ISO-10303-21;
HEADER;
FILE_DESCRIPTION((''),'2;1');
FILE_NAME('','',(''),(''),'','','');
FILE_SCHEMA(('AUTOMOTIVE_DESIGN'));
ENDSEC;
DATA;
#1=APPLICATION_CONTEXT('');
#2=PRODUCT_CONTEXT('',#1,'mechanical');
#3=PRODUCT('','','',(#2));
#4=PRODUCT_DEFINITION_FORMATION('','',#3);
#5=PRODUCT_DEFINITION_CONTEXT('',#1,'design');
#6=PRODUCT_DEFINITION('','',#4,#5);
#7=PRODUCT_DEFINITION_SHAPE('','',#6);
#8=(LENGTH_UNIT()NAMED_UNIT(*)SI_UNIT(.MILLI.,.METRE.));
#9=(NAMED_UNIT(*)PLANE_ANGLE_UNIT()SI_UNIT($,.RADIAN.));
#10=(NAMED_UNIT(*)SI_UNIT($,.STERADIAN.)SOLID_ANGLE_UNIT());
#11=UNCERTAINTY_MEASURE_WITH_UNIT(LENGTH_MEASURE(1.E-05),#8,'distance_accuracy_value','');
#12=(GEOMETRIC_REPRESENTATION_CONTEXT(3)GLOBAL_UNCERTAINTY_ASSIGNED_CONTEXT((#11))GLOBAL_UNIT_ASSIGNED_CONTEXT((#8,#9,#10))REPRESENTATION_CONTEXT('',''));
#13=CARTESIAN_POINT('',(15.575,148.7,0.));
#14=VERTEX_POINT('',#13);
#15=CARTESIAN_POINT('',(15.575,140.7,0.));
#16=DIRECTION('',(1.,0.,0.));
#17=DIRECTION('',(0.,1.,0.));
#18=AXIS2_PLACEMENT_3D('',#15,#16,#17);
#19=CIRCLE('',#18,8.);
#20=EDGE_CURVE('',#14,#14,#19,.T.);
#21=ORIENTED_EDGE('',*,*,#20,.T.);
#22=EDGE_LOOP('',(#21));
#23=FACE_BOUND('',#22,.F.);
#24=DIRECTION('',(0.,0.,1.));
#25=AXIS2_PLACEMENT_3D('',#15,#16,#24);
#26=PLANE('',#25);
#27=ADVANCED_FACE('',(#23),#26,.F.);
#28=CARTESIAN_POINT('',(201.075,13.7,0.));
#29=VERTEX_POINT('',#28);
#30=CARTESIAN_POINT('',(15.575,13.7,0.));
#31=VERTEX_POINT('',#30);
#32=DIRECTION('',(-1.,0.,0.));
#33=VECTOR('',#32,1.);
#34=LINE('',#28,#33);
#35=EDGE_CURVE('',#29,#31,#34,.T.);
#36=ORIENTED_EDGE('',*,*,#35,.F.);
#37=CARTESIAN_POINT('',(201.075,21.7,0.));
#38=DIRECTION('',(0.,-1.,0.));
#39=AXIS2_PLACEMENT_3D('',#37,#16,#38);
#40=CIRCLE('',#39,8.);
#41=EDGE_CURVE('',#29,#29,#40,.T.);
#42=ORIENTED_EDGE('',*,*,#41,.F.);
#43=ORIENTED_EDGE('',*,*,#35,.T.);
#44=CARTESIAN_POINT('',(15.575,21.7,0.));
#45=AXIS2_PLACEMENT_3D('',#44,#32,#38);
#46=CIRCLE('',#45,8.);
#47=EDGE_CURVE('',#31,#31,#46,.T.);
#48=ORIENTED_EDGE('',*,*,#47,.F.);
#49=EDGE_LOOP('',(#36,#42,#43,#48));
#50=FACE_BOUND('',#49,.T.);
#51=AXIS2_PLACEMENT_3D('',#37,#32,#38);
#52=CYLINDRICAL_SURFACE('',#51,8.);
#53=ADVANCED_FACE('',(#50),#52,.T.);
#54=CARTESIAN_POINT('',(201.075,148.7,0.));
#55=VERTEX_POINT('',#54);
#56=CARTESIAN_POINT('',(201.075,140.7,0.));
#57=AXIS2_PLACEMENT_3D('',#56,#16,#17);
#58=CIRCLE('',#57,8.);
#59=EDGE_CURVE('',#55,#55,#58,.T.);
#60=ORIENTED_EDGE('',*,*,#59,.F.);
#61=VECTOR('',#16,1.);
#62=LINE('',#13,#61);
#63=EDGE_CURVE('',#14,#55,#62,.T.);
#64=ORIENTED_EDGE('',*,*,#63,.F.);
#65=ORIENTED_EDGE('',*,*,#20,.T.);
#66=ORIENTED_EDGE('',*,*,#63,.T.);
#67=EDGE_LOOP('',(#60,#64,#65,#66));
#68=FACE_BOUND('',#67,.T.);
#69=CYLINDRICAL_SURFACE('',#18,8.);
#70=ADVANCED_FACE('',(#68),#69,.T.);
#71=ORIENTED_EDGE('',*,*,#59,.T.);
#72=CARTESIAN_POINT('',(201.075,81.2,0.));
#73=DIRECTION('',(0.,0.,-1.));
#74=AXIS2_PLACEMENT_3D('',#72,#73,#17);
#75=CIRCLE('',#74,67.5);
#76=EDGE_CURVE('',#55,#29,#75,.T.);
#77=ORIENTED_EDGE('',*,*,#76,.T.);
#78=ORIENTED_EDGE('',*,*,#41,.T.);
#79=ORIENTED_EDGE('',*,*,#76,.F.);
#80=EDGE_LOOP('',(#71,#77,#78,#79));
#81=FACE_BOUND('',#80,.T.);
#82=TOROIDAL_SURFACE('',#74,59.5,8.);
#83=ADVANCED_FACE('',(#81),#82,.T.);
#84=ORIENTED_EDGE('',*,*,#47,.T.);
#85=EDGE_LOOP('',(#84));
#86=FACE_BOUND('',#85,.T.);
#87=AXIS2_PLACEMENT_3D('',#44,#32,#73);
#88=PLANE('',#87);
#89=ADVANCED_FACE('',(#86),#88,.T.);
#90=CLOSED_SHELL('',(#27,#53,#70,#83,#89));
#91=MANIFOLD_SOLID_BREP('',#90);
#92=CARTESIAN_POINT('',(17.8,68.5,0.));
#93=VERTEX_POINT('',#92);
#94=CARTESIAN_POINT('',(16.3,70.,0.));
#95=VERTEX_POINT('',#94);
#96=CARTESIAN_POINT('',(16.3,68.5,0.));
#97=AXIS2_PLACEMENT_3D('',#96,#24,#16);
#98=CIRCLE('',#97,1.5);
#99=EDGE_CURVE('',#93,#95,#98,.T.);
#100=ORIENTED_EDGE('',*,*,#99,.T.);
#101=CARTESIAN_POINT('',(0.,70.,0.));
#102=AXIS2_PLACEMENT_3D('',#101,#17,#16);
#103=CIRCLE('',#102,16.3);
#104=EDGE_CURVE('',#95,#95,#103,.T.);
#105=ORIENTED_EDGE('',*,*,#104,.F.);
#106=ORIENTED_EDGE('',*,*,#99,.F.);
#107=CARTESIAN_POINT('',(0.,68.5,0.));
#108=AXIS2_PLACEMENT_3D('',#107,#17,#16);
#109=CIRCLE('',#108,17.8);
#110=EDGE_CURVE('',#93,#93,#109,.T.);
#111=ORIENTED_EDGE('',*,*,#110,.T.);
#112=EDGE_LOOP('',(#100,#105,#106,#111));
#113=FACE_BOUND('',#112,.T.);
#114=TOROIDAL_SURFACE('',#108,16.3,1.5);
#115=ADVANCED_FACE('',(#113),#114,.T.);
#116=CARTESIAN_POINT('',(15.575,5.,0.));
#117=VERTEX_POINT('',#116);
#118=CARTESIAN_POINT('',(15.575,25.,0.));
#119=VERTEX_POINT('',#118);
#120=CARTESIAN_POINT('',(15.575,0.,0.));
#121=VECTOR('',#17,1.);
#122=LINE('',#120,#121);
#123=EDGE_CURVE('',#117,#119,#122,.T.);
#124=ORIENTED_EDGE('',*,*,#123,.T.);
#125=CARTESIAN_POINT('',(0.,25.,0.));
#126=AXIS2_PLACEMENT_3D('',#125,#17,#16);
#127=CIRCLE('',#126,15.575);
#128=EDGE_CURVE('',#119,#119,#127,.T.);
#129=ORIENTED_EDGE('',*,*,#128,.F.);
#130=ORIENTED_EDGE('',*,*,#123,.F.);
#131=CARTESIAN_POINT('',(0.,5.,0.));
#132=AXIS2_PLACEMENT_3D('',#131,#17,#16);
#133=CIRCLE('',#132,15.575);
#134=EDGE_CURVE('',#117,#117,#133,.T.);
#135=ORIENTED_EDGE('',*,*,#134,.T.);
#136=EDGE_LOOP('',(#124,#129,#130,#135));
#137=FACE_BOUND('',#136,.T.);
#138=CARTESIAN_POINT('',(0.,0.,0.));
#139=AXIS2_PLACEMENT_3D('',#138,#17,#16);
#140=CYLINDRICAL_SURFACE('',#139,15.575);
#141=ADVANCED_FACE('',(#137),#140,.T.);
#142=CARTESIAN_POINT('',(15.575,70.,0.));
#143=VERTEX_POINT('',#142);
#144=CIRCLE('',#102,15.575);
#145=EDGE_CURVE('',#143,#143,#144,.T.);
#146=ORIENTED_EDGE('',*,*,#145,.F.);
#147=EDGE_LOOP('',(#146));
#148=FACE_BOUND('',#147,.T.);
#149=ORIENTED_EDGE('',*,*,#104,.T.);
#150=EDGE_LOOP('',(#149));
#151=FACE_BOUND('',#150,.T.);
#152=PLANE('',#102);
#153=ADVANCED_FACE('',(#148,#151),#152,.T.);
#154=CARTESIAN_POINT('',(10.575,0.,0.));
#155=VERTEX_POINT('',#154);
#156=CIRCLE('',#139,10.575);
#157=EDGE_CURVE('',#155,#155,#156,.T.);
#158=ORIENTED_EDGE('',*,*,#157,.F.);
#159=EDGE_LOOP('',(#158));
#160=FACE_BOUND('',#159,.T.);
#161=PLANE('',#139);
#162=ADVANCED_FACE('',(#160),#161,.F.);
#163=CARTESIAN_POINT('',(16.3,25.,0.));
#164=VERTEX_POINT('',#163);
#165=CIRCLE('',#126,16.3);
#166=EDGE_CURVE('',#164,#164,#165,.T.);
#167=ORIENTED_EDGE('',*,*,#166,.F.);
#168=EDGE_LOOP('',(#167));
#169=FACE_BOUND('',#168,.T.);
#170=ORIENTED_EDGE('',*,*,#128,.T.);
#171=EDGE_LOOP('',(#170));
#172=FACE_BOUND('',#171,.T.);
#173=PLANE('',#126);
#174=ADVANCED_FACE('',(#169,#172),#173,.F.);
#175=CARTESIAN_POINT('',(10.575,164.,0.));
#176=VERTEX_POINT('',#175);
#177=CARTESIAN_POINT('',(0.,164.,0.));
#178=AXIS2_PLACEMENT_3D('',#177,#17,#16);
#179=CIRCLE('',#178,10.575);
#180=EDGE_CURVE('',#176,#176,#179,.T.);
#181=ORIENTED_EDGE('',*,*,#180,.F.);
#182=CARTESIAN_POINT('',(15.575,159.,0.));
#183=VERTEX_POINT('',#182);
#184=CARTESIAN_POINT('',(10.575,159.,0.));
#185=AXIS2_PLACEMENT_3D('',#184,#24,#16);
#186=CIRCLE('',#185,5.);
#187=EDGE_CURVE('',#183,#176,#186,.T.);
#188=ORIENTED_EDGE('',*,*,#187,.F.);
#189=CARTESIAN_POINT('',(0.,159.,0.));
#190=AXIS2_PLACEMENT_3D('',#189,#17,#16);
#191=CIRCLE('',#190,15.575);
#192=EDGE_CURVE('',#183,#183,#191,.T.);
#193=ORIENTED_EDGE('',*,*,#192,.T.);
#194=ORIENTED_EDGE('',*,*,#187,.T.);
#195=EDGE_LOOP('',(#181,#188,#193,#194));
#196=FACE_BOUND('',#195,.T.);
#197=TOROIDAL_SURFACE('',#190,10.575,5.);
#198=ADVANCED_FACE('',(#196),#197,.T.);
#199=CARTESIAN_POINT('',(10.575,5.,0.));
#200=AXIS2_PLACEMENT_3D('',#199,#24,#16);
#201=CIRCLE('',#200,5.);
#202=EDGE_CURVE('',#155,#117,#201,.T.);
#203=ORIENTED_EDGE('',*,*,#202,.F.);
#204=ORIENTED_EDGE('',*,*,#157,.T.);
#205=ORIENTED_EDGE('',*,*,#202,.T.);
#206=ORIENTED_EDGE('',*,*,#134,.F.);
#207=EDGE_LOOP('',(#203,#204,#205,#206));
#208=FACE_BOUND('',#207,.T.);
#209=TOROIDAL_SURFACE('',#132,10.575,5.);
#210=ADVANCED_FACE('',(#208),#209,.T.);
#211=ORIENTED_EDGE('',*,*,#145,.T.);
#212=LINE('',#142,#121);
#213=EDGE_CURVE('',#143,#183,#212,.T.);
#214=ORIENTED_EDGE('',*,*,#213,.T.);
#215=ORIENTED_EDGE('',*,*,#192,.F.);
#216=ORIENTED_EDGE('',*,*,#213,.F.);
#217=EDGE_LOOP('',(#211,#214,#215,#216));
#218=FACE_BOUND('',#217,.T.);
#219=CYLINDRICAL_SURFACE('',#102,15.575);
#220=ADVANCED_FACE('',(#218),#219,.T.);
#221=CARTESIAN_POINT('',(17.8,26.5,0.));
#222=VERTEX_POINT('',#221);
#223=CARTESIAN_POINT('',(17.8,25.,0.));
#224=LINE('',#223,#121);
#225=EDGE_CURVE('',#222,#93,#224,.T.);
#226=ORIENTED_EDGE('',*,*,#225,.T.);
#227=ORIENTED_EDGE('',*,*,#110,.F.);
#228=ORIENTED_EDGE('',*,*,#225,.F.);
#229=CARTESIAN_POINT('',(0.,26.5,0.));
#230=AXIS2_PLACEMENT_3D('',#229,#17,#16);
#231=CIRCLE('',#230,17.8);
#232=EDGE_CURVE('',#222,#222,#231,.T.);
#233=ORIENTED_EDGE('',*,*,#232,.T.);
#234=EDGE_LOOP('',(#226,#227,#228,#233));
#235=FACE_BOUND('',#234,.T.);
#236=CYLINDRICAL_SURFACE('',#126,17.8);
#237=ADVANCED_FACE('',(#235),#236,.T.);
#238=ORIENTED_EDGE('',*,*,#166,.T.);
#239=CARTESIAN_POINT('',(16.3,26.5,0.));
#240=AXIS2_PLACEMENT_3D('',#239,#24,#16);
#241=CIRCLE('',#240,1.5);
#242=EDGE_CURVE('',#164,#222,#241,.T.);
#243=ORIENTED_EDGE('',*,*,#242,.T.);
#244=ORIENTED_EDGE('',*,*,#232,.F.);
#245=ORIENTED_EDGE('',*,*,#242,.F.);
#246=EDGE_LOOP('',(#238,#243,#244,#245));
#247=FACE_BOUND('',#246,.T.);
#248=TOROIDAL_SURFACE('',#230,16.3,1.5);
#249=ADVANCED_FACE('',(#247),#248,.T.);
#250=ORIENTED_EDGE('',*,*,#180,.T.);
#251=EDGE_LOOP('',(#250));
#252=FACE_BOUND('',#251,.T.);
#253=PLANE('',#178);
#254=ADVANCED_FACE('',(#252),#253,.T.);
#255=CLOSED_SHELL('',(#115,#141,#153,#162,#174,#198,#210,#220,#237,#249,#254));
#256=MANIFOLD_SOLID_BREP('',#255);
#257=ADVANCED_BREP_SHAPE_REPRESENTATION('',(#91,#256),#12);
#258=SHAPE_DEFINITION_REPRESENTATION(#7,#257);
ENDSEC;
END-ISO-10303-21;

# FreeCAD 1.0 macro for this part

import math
import FreeCAD as App
import Part
import Sketcher
from FreeCAD import Vector


def edges_at(feature, points):
    """Names of the edges that pass closest to the given points."""
    edges = feature.Shape.Edges
    near = lambda p: min(range(len(edges)), key=lambda i: edges[i].distToShape(Part.Vertex(*p))[0])
    return sorted({f"Edge{near(p) + 1}" for p in points})


def add_polygon(sketch, points):
    """Adds a closed chain of lines whose ends are joined by coincident constraints."""
    first, n = sketch.GeometryCount, len(points)
    for a, b in zip(points, points[1:] + points[:1]):
        sketch.addGeometry(Part.LineSegment(App.Vector(*a, 0), App.Vector(*b, 0)), False)
    for i in range(n):
        sketch.addConstraint(Sketcher.Constraint("Coincident", first + i, 2, first + (i + 1) % n, 1))

doc = App.newDocument("Part")
body = doc.addObject("PartDesign::Body", "Body")

# Sketch on XY plane
sketch1 = body.newObject("Sketcher::SketchObject", "Sketch")
sketch1.AttachmentSupport = (doc.getObject("XY_Plane"), [""])
sketch1.MapMode = "FlatFace"
add_polygon(sketch1, [(0, 164), (0, 0), (15.6, 0), (15.6, 25), (17.8, 25), (17.8, 70), (15.6, 70), (15.6, 164)])  # lines 0-7
sketch1.addConstraint([
    Sketcher.Constraint("Vertical", 0),
    Sketcher.Constraint("Horizontal", 1),
    Sketcher.Constraint("Vertical", 2),
    Sketcher.Constraint("Horizontal", 3),
    Sketcher.Constraint("Vertical", 4),
    Sketcher.Constraint("Horizontal", 5),
    Sketcher.Constraint("Vertical", 6),
    Sketcher.Constraint("Horizontal", 7),
    Sketcher.Constraint("Coincident", 0, 2, -1, 1),
    Sketcher.Constraint("Vertical", 2, 2, 5, 2),
    Sketcher.Constraint("DistanceY", 0, 2, 0, 1, 164.0),
    Sketcher.Constraint("DistanceY", 2, 1, 2, 2, 25.0),
    Sketcher.Constraint("DistanceY", 4, 1, 4, 2, 45.0),
    Sketcher.Constraint("DistanceX", -1, 1, 3, 2, 17.8),
    Sketcher.Constraint("DistanceX", 1, 1, 1, 2, 15.575),
])
revolution = body.newObject("PartDesign::Revolution", "Revolution")
revolution.Profile = sketch1
revolution.ReferenceAxis = (sketch1, ["V_Axis"])
revolution.Angle = 360
doc.recompute()

fillet = body.newObject("PartDesign::Fillet", "Fillet")
fillet.Base = (revolution, edges_at(revolution, [(-15.575, 164, 0), (-15.575, 0, 0)]))
fillet.Radius = 5
doc.recompute()

fillet2 = body.newObject("PartDesign::Fillet", "Fillet001")
fillet2.Base = (fillet, edges_at(fillet, [(-17.8, 70, 0), (-17.8, 25, 0)]))
fillet2.Radius = 1.5
body2 = doc.addObject("PartDesign::Body", "Body001")

# Sketch on YZ plane
sketch2 = body2.newObject("Sketcher::SketchObject", "Sketch001")
sketch2.AttachmentSupport = (doc.getObject("YZ_Plane001"), [""])
sketch2.MapMode = "FlatFace"
sketch2.AttachmentOffset = App.Placement(Vector(0, 0, 15.575), App.Rotation())
sketch2.addGeometry(Part.Circle(Vector(141, 0, 0), Vector(0, 0, 1), 8), False)
sketch2.addConstraint([
    Sketcher.Constraint("PointOnObject", 0, 3, -1),
    Sketcher.Constraint("Diameter", 0, 16.0),
    Sketcher.Constraint("DistanceX", -1, 1, 0, 3, 140.7),
])

# Sketch on XY plane
sketch3 = body2.newObject("Sketcher::SketchObject", "Sketch002")
sketch3.AttachmentSupport = (doc.getObject("XY_Plane001"), [""])
sketch3.MapMode = "FlatFace"
sketch3.addGeometry([
    Part.LineSegment(Vector(16, 141, 0), Vector(201, 141, 0)),
    Part.ArcOfCircle(Part.Circle(Vector(201, 81, 0), Vector(0, 0, 1), 60), math.radians(-90), math.radians(90)),
    Part.LineSegment(Vector(201, 22, 0), Vector(16, 22, 0)),
], False)
sketch3.addConstraint([
    Sketcher.Constraint("Tangent", 0, 2, 1, 2),
    Sketcher.Constraint("Tangent", 1, 1, 2, 1),
    Sketcher.Constraint("Horizontal", 0),
    Sketcher.Constraint("Horizontal", 2),
    Sketcher.Constraint("Vertical", 0, 1, 2, 2),
    Sketcher.Constraint("Radius", 1, 59.5),
    Sketcher.Constraint("DistanceX", 0, 1, 0, 2, 185.5),
    Sketcher.Constraint("DistanceY", -1, 1, 1, 3, 81.2),
    Sketcher.Constraint("DistanceX", -1, 1, 1, 3, 201.075),
])
doc.recompute()

additivepipe = body2.newObject("PartDesign::AdditivePipe", "AdditivePipe")
additivepipe.Profile = sketch2
additivepipe.Spine = (sketch3, ["Edge1", "Edge2", "Edge3"])

doc.recompute()
